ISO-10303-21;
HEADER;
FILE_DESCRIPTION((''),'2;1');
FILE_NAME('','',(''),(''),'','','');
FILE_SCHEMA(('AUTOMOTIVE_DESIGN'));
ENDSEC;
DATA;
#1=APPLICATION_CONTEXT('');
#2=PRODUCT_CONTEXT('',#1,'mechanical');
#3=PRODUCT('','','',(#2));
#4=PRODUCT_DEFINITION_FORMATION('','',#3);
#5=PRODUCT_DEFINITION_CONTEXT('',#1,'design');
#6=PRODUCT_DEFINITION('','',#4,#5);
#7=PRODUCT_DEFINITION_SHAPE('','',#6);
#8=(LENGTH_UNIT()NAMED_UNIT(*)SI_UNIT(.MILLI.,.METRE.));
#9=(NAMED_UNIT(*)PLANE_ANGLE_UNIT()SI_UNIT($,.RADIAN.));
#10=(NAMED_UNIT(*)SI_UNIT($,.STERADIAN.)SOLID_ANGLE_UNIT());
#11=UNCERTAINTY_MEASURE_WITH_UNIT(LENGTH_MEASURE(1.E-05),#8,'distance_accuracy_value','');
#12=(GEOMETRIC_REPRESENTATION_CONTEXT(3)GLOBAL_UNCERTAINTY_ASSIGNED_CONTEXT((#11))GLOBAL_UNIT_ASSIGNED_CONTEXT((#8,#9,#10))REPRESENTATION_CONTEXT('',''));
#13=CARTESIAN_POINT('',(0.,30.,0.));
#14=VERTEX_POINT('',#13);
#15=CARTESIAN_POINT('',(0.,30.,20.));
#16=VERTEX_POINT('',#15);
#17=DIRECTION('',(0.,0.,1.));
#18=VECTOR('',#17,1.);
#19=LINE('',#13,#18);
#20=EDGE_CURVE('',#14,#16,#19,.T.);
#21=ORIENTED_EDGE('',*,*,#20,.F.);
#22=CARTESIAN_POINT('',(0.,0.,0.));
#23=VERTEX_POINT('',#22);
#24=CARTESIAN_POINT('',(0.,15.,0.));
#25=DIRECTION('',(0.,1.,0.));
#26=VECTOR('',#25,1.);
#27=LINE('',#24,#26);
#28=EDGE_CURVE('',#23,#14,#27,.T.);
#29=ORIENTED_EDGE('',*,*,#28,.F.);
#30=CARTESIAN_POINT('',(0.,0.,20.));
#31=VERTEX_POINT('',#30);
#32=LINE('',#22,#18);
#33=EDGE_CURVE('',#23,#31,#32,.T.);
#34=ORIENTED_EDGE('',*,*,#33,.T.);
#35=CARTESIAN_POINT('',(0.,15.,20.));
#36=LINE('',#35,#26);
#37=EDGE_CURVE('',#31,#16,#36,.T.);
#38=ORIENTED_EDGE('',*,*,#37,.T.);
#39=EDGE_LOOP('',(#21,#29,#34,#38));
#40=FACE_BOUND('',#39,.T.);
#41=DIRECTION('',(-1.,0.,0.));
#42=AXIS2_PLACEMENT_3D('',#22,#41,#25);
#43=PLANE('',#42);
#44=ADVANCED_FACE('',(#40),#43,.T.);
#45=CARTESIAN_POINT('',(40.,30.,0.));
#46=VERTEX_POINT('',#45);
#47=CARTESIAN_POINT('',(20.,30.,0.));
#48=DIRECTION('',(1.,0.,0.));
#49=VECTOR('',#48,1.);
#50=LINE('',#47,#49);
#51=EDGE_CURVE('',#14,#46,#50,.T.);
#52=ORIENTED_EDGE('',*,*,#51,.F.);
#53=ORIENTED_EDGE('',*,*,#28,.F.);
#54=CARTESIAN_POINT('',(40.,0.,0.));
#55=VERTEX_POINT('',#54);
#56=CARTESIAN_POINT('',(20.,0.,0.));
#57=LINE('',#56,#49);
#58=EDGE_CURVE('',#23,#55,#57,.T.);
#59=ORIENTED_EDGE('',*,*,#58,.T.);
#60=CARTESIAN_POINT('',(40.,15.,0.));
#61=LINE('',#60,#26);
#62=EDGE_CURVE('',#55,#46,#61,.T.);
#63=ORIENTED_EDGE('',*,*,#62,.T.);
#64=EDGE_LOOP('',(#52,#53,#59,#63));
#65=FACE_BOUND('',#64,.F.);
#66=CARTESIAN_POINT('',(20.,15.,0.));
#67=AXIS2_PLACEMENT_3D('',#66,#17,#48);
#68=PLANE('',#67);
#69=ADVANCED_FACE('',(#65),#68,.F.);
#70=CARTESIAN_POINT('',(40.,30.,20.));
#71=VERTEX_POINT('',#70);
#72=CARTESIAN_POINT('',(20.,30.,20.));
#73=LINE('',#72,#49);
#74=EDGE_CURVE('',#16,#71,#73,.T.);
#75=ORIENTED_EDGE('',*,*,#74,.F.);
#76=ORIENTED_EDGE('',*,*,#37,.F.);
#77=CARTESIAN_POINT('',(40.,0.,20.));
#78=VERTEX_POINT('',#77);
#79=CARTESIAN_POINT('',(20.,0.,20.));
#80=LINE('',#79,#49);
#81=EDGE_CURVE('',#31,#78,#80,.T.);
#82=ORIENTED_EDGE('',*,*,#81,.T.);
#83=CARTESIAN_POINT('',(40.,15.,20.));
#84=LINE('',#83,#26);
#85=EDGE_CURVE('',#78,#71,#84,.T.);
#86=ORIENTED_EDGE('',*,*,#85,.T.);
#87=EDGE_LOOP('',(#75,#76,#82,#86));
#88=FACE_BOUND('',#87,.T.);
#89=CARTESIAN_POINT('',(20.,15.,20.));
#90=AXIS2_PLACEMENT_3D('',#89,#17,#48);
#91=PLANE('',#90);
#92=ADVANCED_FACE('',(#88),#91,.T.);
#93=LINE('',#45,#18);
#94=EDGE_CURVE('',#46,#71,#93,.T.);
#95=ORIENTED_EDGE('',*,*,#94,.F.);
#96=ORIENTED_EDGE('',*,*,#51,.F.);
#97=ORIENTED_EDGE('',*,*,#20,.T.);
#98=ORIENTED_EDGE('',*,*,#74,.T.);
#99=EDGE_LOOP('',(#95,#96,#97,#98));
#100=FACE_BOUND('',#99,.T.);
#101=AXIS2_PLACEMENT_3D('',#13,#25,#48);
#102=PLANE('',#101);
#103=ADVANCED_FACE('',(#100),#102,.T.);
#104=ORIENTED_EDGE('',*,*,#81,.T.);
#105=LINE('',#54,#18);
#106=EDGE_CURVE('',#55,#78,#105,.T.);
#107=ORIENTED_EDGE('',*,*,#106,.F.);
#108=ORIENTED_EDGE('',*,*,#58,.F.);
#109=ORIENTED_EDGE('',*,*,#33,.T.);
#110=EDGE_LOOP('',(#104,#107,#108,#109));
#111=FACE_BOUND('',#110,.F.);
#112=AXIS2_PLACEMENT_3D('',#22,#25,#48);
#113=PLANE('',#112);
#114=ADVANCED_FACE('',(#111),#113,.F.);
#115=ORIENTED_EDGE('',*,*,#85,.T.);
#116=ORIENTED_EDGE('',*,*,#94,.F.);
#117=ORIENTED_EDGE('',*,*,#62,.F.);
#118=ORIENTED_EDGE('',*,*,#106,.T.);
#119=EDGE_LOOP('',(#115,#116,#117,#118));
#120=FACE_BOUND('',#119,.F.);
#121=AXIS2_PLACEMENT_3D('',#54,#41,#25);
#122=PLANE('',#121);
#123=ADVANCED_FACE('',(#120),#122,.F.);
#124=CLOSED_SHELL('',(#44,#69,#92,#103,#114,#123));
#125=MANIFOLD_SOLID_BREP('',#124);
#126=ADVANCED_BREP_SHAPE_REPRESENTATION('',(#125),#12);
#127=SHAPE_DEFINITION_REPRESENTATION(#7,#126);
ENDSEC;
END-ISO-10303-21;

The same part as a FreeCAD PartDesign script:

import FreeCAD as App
import Part
import Sketcher

V = App.Vector
Q = App.Units.Quantity

doc = App.newDocument("Part")
body = doc.addObject("PartDesign::Body", "Body")

# Sketch on XY plane
sketch1 = body.newObject("Sketcher::SketchObject", "Sketch")
sketch1.AttachmentSupport = (doc.getObject("XY_Plane"), [""])
sketch1.MapMode = "FlatFace"
sketch1.addGeometry([
    Part.LineSegment(V(0, 30, 0), V(0, 0, 0)),
    Part.LineSegment(V(0, 0, 0), V(40, 0, 0)),
    Part.LineSegment(V(40, 0, 0), V(40, 30, 0)),
    Part.LineSegment(V(40, 30, 0), V(0, 30, 0)),
], False)
sketch1.addConstraint([
    Sketcher.Constraint("Coincident", 0, 2, 1, 1),
    Sketcher.Constraint("Coincident", 1, 2, 2, 1),
    Sketcher.Constraint("Coincident", 2, 2, 3, 1),
    Sketcher.Constraint("Coincident", 3, 2, 0, 1),
    Sketcher.Constraint("Vertical", 0),
    Sketcher.Constraint("Horizontal", 1),
    Sketcher.Constraint("Vertical", 2),
    Sketcher.Constraint("Horizontal", 3),
    Sketcher.Constraint("Coincident", 0, 2, -1, 1),
    Sketcher.Constraint("DistanceX", 1, 1, 1, 2, Q("40 mm")),
    Sketcher.Constraint("DistanceY", 0, 2, 0, 1, Q("30 mm")),
])
pad1 = body.newObject("PartDesign::Pad", "Pad")
pad1.Profile = sketch1
pad1.Length = 20

doc.recompute()
